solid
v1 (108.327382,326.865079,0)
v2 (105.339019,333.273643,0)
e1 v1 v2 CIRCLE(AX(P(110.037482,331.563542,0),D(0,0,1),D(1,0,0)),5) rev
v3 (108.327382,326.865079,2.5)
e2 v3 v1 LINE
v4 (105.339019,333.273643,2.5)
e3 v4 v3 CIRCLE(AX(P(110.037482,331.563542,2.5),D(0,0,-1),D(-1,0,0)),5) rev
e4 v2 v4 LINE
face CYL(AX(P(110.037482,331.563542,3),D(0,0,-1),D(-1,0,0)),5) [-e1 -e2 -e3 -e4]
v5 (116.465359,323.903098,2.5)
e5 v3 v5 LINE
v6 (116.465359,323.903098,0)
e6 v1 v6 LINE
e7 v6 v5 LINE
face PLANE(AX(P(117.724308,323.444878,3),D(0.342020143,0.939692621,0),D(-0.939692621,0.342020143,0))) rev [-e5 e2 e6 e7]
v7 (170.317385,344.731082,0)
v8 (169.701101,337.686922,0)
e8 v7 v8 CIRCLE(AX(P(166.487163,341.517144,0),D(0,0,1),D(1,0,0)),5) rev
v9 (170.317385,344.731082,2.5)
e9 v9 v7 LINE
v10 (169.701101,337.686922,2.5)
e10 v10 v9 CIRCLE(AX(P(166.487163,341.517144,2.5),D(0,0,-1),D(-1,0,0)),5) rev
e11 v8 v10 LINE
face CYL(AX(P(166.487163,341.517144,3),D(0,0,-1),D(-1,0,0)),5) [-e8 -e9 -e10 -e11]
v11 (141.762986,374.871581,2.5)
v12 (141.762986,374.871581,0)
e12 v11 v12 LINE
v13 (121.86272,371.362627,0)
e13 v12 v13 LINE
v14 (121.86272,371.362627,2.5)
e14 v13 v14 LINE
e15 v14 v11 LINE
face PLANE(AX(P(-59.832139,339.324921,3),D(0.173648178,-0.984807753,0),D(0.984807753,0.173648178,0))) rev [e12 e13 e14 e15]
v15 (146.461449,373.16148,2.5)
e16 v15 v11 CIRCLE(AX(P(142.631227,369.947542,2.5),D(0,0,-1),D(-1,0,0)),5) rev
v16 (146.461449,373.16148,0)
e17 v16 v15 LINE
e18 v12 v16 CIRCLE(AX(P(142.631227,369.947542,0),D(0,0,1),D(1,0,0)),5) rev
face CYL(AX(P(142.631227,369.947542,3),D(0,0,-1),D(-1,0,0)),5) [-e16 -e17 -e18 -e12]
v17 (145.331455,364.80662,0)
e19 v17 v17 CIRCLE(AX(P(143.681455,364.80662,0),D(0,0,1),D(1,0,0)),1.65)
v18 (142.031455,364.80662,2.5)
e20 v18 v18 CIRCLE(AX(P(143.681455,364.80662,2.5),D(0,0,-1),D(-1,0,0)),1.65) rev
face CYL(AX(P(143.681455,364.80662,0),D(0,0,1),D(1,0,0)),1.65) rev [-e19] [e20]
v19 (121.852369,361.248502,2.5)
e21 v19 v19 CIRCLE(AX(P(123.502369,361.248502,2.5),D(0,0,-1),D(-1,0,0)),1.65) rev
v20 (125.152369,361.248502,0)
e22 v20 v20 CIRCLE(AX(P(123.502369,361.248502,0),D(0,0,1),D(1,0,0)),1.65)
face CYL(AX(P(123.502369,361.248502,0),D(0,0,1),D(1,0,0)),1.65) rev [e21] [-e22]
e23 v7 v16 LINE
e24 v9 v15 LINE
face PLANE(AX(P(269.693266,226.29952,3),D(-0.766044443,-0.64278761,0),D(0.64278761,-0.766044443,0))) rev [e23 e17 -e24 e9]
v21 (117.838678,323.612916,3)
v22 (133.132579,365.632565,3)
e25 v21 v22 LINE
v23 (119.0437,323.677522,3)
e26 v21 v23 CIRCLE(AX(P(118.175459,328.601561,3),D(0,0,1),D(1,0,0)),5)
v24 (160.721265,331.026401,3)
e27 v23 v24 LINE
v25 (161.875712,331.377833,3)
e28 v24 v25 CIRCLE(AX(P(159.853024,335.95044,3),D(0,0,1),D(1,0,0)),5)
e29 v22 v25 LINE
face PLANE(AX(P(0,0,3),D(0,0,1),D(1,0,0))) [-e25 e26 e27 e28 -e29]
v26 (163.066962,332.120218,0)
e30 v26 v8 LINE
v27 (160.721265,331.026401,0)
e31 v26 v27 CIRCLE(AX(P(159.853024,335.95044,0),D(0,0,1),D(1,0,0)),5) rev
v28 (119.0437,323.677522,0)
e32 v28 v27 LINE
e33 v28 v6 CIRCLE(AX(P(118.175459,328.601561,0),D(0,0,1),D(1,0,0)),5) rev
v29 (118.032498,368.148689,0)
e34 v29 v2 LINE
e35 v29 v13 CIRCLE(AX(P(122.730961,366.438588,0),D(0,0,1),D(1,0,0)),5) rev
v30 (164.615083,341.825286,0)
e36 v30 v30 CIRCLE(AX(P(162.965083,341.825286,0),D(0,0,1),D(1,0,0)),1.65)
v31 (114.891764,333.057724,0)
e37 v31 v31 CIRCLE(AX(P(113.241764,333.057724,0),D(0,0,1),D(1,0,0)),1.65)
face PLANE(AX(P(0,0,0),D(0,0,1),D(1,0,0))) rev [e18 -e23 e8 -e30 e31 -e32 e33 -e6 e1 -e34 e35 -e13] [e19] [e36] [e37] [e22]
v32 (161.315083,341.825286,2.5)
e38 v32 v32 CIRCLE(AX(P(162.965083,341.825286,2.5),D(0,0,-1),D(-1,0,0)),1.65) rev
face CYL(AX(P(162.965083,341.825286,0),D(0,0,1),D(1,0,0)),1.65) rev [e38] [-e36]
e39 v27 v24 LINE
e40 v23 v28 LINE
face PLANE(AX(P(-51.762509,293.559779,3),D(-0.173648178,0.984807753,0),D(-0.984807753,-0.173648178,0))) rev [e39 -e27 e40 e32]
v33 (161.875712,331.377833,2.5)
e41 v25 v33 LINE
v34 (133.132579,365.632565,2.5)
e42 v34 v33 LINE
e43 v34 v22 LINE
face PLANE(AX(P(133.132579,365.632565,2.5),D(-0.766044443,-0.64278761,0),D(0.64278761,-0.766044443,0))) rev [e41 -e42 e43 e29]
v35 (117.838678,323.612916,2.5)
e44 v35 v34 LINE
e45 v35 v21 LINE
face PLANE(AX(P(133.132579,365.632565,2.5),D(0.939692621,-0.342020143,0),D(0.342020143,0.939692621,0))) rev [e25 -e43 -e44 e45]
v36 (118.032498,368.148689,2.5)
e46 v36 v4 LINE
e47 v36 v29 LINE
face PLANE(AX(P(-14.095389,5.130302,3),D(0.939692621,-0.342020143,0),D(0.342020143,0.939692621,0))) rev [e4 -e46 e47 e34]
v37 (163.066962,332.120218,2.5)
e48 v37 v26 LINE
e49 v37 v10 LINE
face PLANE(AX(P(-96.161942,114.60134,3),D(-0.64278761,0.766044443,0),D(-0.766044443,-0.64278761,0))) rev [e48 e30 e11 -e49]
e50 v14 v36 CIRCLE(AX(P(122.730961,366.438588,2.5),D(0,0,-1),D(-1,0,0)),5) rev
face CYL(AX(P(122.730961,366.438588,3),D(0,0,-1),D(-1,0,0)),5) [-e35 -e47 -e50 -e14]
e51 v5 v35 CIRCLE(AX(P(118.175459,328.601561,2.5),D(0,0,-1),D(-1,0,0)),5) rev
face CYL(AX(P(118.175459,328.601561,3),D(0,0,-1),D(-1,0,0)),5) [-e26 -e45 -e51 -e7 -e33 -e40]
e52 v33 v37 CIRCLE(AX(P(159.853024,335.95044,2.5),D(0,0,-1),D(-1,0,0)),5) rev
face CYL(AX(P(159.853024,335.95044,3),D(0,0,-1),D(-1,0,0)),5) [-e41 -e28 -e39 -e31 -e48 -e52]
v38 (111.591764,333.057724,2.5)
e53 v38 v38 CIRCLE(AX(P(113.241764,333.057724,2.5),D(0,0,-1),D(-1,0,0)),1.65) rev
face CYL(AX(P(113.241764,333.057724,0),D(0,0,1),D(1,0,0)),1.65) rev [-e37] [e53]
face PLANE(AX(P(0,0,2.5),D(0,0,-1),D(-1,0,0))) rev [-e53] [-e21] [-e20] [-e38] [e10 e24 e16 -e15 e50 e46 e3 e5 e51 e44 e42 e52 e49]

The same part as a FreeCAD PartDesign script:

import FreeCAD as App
import Part
import Sketcher
from FreeCAD import Vector
Q = App.Units.Quantity


def edges_at(feature, points):
    """Names of the edges that pass closest to the given points."""
    edges = feature.Shape.Edges
    near = lambda p: min(range(len(edges)), key=lambda i: edges[i].distToShape(Part.Vertex(*p))[0])
    return sorted({f"Edge{near(p) + 1}" for p in points})


def add_polygon(sketch, points):
    """Adds a closed chain of lines whose ends are joined by coincident constraints."""
    first, n = sketch.GeometryCount, len(points)
    for a, b in zip(points, points[1:] + points[:1]):
        sketch.addGeometry(Part.LineSegment(App.Vector(*a, 0), App.Vector(*b, 0)), False)
    for i in range(n):
        sketch.addConstraint(Sketcher.Constraint("Coincident", first + i, 2, first + (i + 1) % n, 1))

doc = App.newDocument("Part")
body = doc.addObject("PartDesign::Body", "Body")

sketch1 = doc.addObject("Sketcher::SketchObject", "Sketch")
body.addObject(sketch1)
sketch1.AttachmentSupport = (doc.XY_Plane, [""])
sketch1.MapMode = "FlatFace"
add_polygon(sketch1, [(174, 341), (145, 375), (119, 371), (104, 329), (118, 323), (162, 331)])
sketch1.addConstraint([
    Sketcher.Constraint("Perpendicular", 2, 3),
    Sketcher.Constraint("Parallel", 1, 4),
    Sketcher.Constraint("Perpendicular", 0, 5),
    Sketcher.Constraint("Equal", 0, 2),
    Sketcher.Constraint("Equal", 2, 4),
    Sketcher.Constraint("Equal", 3, 5),
    Sketcher.Constraint("Angle", 0, Q("130 deg")),
    Sketcher.Constraint("Angle", 1, Q("-170 deg")),
    Sketcher.Constraint("Distance", 0, Q("45 mm")),
    Sketcher.Constraint("Distance", 3, Q("15 mm")),
    Sketcher.Constraint("DistanceX", -1, 1, 0, 2, Q("144.605881 mm")),
    Sketcher.Constraint("DistanceY", -1, 1, 0, 2, Q("375.37286 mm")),
])
pad1 = doc.addObject("PartDesign::Pad", "Pad")
body.addObject(pad1)
pad1.Profile = sketch1
pad1.Length = 3

sketch2 = doc.addObject("Sketcher::SketchObject", "Sketch001")
body.addObject(sketch2)
sketch2.AttachmentSupport = (doc.XY_Plane, [""])
sketch2.MapMode = "FlatFace"
sketch2.AttachmentOffset = App.Placement(Vector(0, 0, 3), App.Rotation())
sketch2.addGeometry([
    Part.Circle(Vector(113.2, 333.1, 0), Vector(0, 0, 1), 1.6),
    Part.Circle(Vector(123.5, 361.2, 0), Vector(0, 0, 1), 1.6),
    Part.Circle(Vector(143.7, 364.8, 0), Vector(0, 0, 1), 1.6),
    Part.Circle(Vector(163, 341.8, 0), Vector(0, 0, 1), 1.6),
], False)
sketch2.addConstraint([
    Sketcher.Constraint("Equal", 0, 1),
    Sketcher.Constraint("Equal", 1, 2),
    Sketcher.Constraint("Equal", 2, 3),
    Sketcher.Constraint("Diameter", 0, Q("3.3 mm")),
    Sketcher.Constraint("DistanceX", -1, 1, 1, 3, Q("123.502369 mm")),
    Sketcher.Constraint("DistanceY", -1, 1, 2, 3, Q("364.80662 mm")),
    Sketcher.Constraint("DistanceY", 0, 3, 1, 3, Q("28.190779 mm")),
    Sketcher.Constraint("DistanceX", 0, 3, 2, 3, Q("30.43969 mm")),
    Sketcher.Constraint("DistanceX", 2, 3, 3, 3, Q("19.283628 mm")),
    Sketcher.Constraint("DistanceX", -1, 1, 0, 3, Q("113.241764 mm")),
    Sketcher.Constraint("DistanceY", -1, 1, 0, 3, Q("333.057724 mm")),
    Sketcher.Constraint("DistanceY", -1, 1, 3, 3, Q("341.825286 mm")),
])
pocket1 = doc.addObject("PartDesign::Pocket", "Pocket")
body.addObject(pocket1)
pocket1.Profile = sketch2
pocket1.Length = 3
doc.recompute()

fillet = doc.addObject("PartDesign::Fillet", "Fillet")
body.addObject(fillet)
fillet.Base = (pocket1, edges_at(pocket1, [
    (173.531, 340.901, 1.5),
    (162.041, 331.259, 1.5),
    (117.724, 323.445, 1.5),
    (103.629, 328.575, 1.5),
    (119.02, 370.861, 1.5),
    (144.606, 375.373, 1.5),
]))
fillet.Radius = 5

sketch3 = doc.addObject("Sketcher::SketchObject", "Sketch002")
body.addObject(sketch3)
sketch3.AttachmentSupport = (doc.XY_Plane, [""])
sketch3.MapMode = "FlatFace"
sketch3.AttachmentOffset = App.Placement(Vector(0, 0, 3), App.Rotation())
add_polygon(sketch3, [(121, 377), (104, 329), (118, 323), (133, 366), (162, 331), (174, 341), (140, 381), (132, 374)])
sketch3.addConstraint([
    Sketcher.Constraint("Perpendicular", 0, 1),
    Sketcher.Constraint("Perpendicular", 1, 2),
    Sketcher.Constraint("Perpendicular", 3, 4),
    Sketcher.Constraint("Perpendicular", 4, 5),
    Sketcher.Constraint("Perpendicular", 5, 6),
    Sketcher.Constraint("Perpendicular", 2, 7),
    Sketcher.Constraint("Equal", 2, 3),
    Sketcher.Constraint("Equal", 1, 4),
    Sketcher.Constraint("Equal", 0, 5),
    Sketcher.Constraint("Angle", 0, Q("-110 deg")),
    Sketcher.Constraint("Angle", 3, Q("-50 deg")),
    Sketcher.Constraint("Distance", 0, Q("52 mm")),
    Sketcher.Constraint("Distance", 1, Q("15.05 mm")),
    Sketcher.Constraint("DistanceX", 7, 2, 5, 2, Q("18.692402 mm")),
    Sketcher.Constraint("DistanceX", -1, 1, 0, 2, Q("103.628919 mm")),
    Sketcher.Constraint("DistanceY", -1, 1, 0, 2, Q("328.57518 mm")),
])
pocket2 = doc.addObject("PartDesign::Pocket", "Pocket001")
body.addObject(pocket2)
pocket2.Profile = sketch3
pocket2.Length = 0.5

doc.recompute()
